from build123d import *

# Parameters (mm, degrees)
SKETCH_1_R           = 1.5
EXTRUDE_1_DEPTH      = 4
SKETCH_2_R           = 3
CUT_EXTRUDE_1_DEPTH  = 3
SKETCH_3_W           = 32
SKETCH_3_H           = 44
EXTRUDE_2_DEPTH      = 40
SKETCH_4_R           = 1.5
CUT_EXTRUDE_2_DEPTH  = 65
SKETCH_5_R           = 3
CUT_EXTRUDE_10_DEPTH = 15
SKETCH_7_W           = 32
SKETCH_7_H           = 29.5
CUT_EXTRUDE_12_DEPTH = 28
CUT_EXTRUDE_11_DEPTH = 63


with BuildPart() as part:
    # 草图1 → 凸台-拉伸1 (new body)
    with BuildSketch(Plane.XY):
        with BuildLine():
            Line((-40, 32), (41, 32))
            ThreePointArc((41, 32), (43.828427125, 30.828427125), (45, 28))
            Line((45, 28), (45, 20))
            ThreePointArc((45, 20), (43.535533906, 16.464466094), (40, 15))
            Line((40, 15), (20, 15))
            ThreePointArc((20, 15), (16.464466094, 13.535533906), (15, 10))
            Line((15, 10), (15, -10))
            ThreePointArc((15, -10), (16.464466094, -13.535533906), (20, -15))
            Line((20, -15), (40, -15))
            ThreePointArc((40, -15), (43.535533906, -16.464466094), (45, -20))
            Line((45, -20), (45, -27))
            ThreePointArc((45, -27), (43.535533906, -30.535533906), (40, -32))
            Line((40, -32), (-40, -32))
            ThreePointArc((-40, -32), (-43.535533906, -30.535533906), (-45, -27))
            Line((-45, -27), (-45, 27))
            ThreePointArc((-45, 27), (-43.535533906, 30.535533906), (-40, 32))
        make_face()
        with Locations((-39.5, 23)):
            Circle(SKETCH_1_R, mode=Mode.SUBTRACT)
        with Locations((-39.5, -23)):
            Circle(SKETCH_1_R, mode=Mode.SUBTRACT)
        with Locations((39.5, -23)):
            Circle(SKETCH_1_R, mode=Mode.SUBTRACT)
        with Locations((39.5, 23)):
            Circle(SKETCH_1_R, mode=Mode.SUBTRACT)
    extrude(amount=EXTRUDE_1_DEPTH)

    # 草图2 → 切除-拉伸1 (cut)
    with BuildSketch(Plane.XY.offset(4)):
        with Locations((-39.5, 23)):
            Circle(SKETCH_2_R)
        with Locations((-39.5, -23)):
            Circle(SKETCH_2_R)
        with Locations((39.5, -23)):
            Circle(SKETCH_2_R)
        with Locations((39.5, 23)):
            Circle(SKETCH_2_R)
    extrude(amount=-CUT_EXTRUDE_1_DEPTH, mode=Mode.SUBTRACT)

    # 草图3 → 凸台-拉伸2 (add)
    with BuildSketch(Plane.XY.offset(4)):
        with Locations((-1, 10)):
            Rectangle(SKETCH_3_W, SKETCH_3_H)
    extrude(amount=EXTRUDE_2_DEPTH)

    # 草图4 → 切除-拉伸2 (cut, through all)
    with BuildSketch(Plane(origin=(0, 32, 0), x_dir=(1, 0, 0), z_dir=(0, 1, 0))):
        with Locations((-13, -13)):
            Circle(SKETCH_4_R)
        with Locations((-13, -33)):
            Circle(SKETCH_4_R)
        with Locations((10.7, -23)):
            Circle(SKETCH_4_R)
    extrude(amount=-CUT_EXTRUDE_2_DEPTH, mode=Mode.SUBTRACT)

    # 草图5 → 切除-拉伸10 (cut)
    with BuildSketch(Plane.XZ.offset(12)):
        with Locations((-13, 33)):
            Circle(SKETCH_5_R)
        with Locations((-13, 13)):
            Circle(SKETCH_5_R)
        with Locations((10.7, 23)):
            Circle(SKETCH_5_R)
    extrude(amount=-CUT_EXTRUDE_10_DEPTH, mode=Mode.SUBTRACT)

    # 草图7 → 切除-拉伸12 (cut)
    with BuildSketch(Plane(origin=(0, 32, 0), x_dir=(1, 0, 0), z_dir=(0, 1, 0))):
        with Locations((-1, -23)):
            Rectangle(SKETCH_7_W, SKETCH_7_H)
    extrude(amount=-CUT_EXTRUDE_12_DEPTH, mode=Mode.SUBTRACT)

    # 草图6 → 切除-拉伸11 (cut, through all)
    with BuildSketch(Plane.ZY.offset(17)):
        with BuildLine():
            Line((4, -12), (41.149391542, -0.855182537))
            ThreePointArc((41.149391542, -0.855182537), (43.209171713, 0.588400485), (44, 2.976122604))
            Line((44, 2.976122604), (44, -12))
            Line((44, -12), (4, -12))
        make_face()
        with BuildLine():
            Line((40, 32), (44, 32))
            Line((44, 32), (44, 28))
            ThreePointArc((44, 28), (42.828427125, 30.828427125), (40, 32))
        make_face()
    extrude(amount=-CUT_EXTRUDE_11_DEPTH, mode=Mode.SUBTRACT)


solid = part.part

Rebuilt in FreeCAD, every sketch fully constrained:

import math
import FreeCAD as App
import Part
import Sketcher

V = App.Vector
Q = App.Units.Quantity


def add_polygon(sketch, points):
    """Adds a closed chain of lines whose ends are joined by coincident constraints."""
    first, n = sketch.GeometryCount, len(points)
    for a, b in zip(points, points[1:] + points[:1]):
        sketch.addGeometry(Part.LineSegment(App.Vector(*a, 0), App.Vector(*b, 0)), False)
    for i in range(n):
        sketch.addConstraint(Sketcher.Constraint("Coincident", first + i, 2, first + (i + 1) % n, 1))

doc = App.newDocument("Part")
body = doc.addObject("PartDesign::Body", "Body")

# Sketch on XY plane
sketch1 = body.newObject("Sketcher::SketchObject", "Sketch")
sketch1.AttachmentSupport = (doc.getObject("XY_Plane"), [""])
sketch1.MapMode = "FlatFace"
sketch1.addGeometry([
    Part.LineSegment(V(41, 32, 0), V(-40, 32, 0)),  # 0
    Part.ArcOfCircle(Part.Circle(V(-40, 27, 0), V(0, 0, 1), 5), math.radians(90), math.radians(180)),  # 1
    Part.LineSegment(V(-45, 27, 0), V(-45, -27, 0)),  # 2
    Part.ArcOfCircle(Part.Circle(V(-40, -27, 0), V(0, 0, 1), 5), math.radians(180), math.radians(270)),  # 3
    Part.LineSegment(V(-40, -32, 0), V(40, -32, 0)),  # 4
    Part.ArcOfCircle(Part.Circle(V(40, -27, 0), V(0, 0, 1), 5), math.radians(-90), math.radians(0)),  # 5
    Part.LineSegment(V(45, -27, 0), V(45, -20, 0)),  # 6
    Part.ArcOfCircle(Part.Circle(V(40, -20, 0), V(0, 0, 1), 5), math.radians(0), math.radians(90)),  # 7
    Part.LineSegment(V(40, -15, 0), V(20, -15, 0)),  # 8
    Part.ArcOfCircle(Part.Circle(V(20, -10, 0), V(0, 0, 1), 5), math.radians(180), math.radians(270)),  # 9
    Part.LineSegment(V(15, -10, 0), V(15, 10, 0)),  # 10
    Part.ArcOfCircle(Part.Circle(V(20, 10, 0), V(0, 0, 1), 5), math.radians(90), math.radians(180)),  # 11
    Part.LineSegment(V(20, 15, 0), V(40, 15, 0)),  # 12
    Part.ArcOfCircle(Part.Circle(V(40, 20, 0), V(0, 0, 1), 5), math.radians(-90), math.radians(0)),  # 13
    Part.LineSegment(V(45, 20, 0), V(45, 28, 0)),  # 14
    Part.ArcOfCircle(Part.Circle(V(41, 28, 0), V(0, 0, 1), 4), math.radians(0), math.radians(90)),  # 15
    Part.Circle(V(39.5, -23, 0), V(0, 0, 1), 1.5),  # 16
    Part.Circle(V(-39.5, -23, 0), V(0, 0, 1), 1.5),  # 17
    Part.Circle(V(39.5, 23, 0), V(0, 0, 1), 1.5),  # 18
    Part.Circle(V(-39.5, 23, 0), V(0, 0, 1), 1.5),  # 19
], False)
sketch1.addConstraint([
    Sketcher.Constraint("Tangent", 0, 2, 1, 1),
    Sketcher.Constraint("Tangent", 1, 2, 2, 1),
    Sketcher.Constraint("Tangent", 2, 2, 3, 1),
    Sketcher.Constraint("Tangent", 3, 2, 4, 1),
    Sketcher.Constraint("Tangent", 4, 2, 5, 1),
    Sketcher.Constraint("Tangent", 5, 2, 6, 1),
    Sketcher.Constraint("Tangent", 6, 2, 7, 1),
    Sketcher.Constraint("Tangent", 7, 2, 8, 1),
    Sketcher.Constraint("Tangent", 8, 2, 9, 2),
    Sketcher.Constraint("Tangent", 9, 1, 10, 1),
    Sketcher.Constraint("Tangent", 10, 2, 11, 2),
    Sketcher.Constraint("Tangent", 11, 1, 12, 1),
    Sketcher.Constraint("Tangent", 12, 2, 13, 1),
    Sketcher.Constraint("Tangent", 13, 2, 14, 1),
    Sketcher.Constraint("Tangent", 14, 2, 15, 1),
    Sketcher.Constraint("Tangent", 15, 2, 0, 1),
    Sketcher.Constraint("Horizontal", 0),
    Sketcher.Constraint("Vertical", 2),
    Sketcher.Constraint("Horizontal", 4),
    Sketcher.Constraint("Vertical", 6),
    Sketcher.Constraint("Horizontal", 8),
    Sketcher.Constraint("Vertical", 10),
    Sketcher.Constraint("Horizontal", 12),
    Sketcher.Constraint("Vertical", 14),
    Sketcher.Constraint("Equal", 1, 3),
    Sketcher.Constraint("Equal", 3, 5),
    Sketcher.Constraint("Equal", 5, 7),
    Sketcher.Constraint("Equal", 7, 9),
    Sketcher.Constraint("Equal", 9, 11),
    Sketcher.Constraint("Equal", 11, 13),
    Sketcher.Constraint("Equal", 16, 17),
    Sketcher.Constraint("Equal", 17, 18),
    Sketcher.Constraint("Equal", 18, 19),
    Sketcher.Constraint("Symmetric", 1, 3, 5, 3, -1, 1),
    Sketcher.Constraint("Symmetric", 17, 3, 18, 3, -1, 1),
    Sketcher.Constraint("Symmetric", 16, 3, 19, 3, -1, 1),
    Sketcher.Constraint("Symmetric", 16, 3, 17, 3, -2),
    Sketcher.Constraint("Symmetric", 7, 3, 13, 3, -1),
    Sketcher.Constraint("Equal", 12, 10),
    Sketcher.Constraint("Diameter", 16, Q("3 mm")),
    Sketcher.Constraint("Radius", 1, Q("5 mm")),
    Sketcher.Constraint("Radius", 15, Q("4 mm")),
    Sketcher.Constraint("DistanceX", 0, 2, 0, 1, Q("81 mm")),
    Sketcher.Constraint("DistanceX", 8, 2, 8, 1, Q("20 mm")),
    Sketcher.Constraint("DistanceY", 2, 2, 2, 1, Q("54 mm")),
    Sketcher.Constraint("DistanceY", 16, 3, -1, 1, Q("23 mm")),
    Sketcher.Constraint("DistanceX", 17, 3, 16, 3, Q("79 mm")),
])
pad1 = body.newObject("PartDesign::Pad", "Pad")
pad1.Profile = sketch1
pad1.Length = 4

# Sketch on XY plane
sketch2 = body.newObject("Sketcher::SketchObject", "Sketch001")
sketch2.AttachmentSupport = (doc.getObject("XY_Plane"), [""])
sketch2.MapMode = "FlatFace"
sketch2.AttachmentOffset = App.Placement(V(0, 0, 4), App.Rotation())
sketch2.addGeometry([
    Part.Circle(V(-39.5, 23, 0), V(0, 0, 1), 3),
    Part.Circle(V(-39.5, -23, 0), V(0, 0, 1), 3),
    Part.Circle(V(39.5, -23, 0), V(0, 0, 1), 3),
    Part.Circle(V(39.5, 23, 0), V(0, 0, 1), 3),
], False)
sketch2.addConstraint([
    Sketcher.Constraint("Equal", 0, 1),
    Sketcher.Constraint("Equal", 1, 2),
    Sketcher.Constraint("Equal", 2, 3),
    Sketcher.Constraint("Symmetric", 0, 3, 2, 3, -1, 1),
    Sketcher.Constraint("Symmetric", 1, 3, 3, 3, -1, 1),
    Sketcher.Constraint("Symmetric", 1, 3, 2, 3, -2),
    Sketcher.Constraint("Diameter", 0, Q("6 mm")),
    Sketcher.Constraint("DistanceY", -1, 1, 0, 3, Q("23 mm")),
    Sketcher.Constraint("DistanceX", 1, 3, 2, 3, Q("79 mm")),
])
pocket1 = body.newObject("PartDesign::Pocket", "Pocket")
pocket1.Profile = sketch2
pocket1.Length = 3

# Sketch on XY plane
sketch3 = body.newObject("Sketcher::SketchObject", "Sketch002")
sketch3.AttachmentSupport = (doc.getObject("XY_Plane"), [""])
sketch3.MapMode = "FlatFace"
sketch3.AttachmentOffset = App.Placement(V(0, 0, 4), App.Rotation())
add_polygon(sketch3, [(-17, 32), (-17, -12), (15, -12), (15, 32)])  # lines 0-3
sketch3.addConstraint([
    Sketcher.Constraint("Vertical", 0),
    Sketcher.Constraint("Horizontal", 1),
    Sketcher.Constraint("Vertical", 2),
    Sketcher.Constraint("Horizontal", 3),
    Sketcher.Constraint("DistanceX", 1, 1, 1, 2, Q("32 mm")),
    Sketcher.Constraint("DistanceY", 0, 2, 0, 1, Q("44 mm")),
    Sketcher.Constraint("DistanceX", 0, 2, -1, 1, Q("17 mm")),
    Sketcher.Constraint("DistanceY", 0, 2, -1, 1, Q("12 mm")),
])
pad2 = body.newObject("PartDesign::Pad", "Pad001")
pad2.Profile = sketch3
pad2.Length = 40

# Sketch on XZ plane
sketch4 = body.newObject("Sketcher::SketchObject", "Sketch003")
sketch4.AttachmentSupport = (doc.getObject("XZ_Plane"), [""])
sketch4.MapMode = "FlatFace"
sketch4.AttachmentOffset = App.Placement(V(0, 0, -32), App.Rotation())
sketch4.addGeometry([
    Part.Circle(V(-13, 13, 0), V(0, 0, 1), 1.5),
    Part.Circle(V(-13, 33, 0), V(0, 0, 1), 1.5),
    Part.Circle(V(10.7, 23, 0), V(0, 0, 1), 1.5),
], False)
sketch4.addConstraint([
    Sketcher.Constraint("Equal", 0, 1),
    Sketcher.Constraint("Equal", 1, 2),
    Sketcher.Constraint("Vertical", 0, 3, 1, 3),
    Sketcher.Constraint("Diameter", 0, Q("3 mm")),
    Sketcher.Constraint("DistanceX", 0, 3, -1, 1, Q("13 mm")),
    Sketcher.Constraint("DistanceY", -1, 1, 0, 3, Q("13 mm")),
    Sketcher.Constraint("DistanceY", -1, 1, 1, 3, Q("33 mm")),
    Sketcher.Constraint("DistanceY", -1, 1, 2, 3, Q("23 mm")),
    Sketcher.Constraint("DistanceX", -1, 1, 2, 3, Q("10.7 mm")),
])
pocket2 = body.newObject("PartDesign::Pocket", "Pocket001")
pocket2.Profile = sketch4
pocket2.Type = "ThroughAll"
pocket2.Reversed = True

# Sketch on XZ plane
sketch5 = body.newObject("Sketcher::SketchObject", "Sketch004")
sketch5.AttachmentSupport = (doc.getObject("XZ_Plane"), [""])
sketch5.MapMode = "FlatFace"
sketch5.AttachmentOffset = App.Placement(V(0, 0, 12), App.Rotation())
sketch5.addGeometry([
    Part.Circle(V(-13, 33, 0), V(0, 0, 1), 3),
    Part.Circle(V(-13, 13, 0), V(0, 0, 1), 3),
    Part.Circle(V(10.7, 23, 0), V(0, 0, 1), 3),
], False)
sketch5.addConstraint([
    Sketcher.Constraint("Equal", 0, 1),
    Sketcher.Constraint("Equal", 1, 2),
    Sketcher.Constraint("Vertical", 0, 3, 1, 3),
    Sketcher.Constraint("Diameter", 0, Q("6 mm")),
    Sketcher.Constraint("DistanceX", 0, 3, -1, 1, Q("13 mm")),
    Sketcher.Constraint("DistanceY", -1, 1, 0, 3, Q("33 mm")),
    Sketcher.Constraint("DistanceY", -1, 1, 1, 3, Q("13 mm")),
    Sketcher.Constraint("DistanceY", -1, 1, 2, 3, Q("23 mm")),
    Sketcher.Constraint("DistanceX", -1, 1, 2, 3, Q("10.7 mm")),
])
pocket3 = body.newObject("PartDesign::Pocket", "Pocket002")
pocket3.Profile = sketch5
pocket3.Length = 15

# Sketch on XZ plane
sketch6 = body.newObject("Sketcher::SketchObject", "Sketch005")
sketch6.AttachmentSupport = (doc.getObject("XZ_Plane"), [""])
sketch6.MapMode = "FlatFace"
sketch6.AttachmentOffset = App.Placement(V(0, 0, -32), App.Rotation())
add_polygon(sketch6, [(-17, 8), (-17, 38), (15, 38), (15, 8)])  # lines 0-3
sketch6.addConstraint([
    Sketcher.Constraint("Vertical", 0),
    Sketcher.Constraint("Horizontal", 1),
    Sketcher.Constraint("Vertical", 2),
    Sketcher.Constraint("Horizontal", 3),
    Sketcher.Constraint("DistanceX", 1, 1, 1, 2, Q("32 mm")),
    Sketcher.Constraint("DistanceY", 0, 1, 0, 2, Q("29.5 mm")),
    Sketcher.Constraint("DistanceX", 0, 2, -1, 1, Q("17 mm")),
    Sketcher.Constraint("DistanceY", -1, 1, 0, 2, Q("37.75 mm")),
])
pocket4 = body.newObject("PartDesign::Pocket", "Pocket003")
pocket4.Profile = sketch6
pocket4.Length = 28
pocket4.Reversed = True

# Sketch on YZ plane
sketch7 = body.newObject("Sketcher::SketchObject", "Sketch006")
sketch7.AttachmentSupport = (doc.getObject("YZ_Plane"), [""])
sketch7.MapMode = "FlatFace"
sketch7.AttachmentOffset = App.Placement(V(0, 0, -17), App.Rotation())
sketch7.addGeometry([
    Part.LineSegment(V(-0.9, 41.1, 0), V(-12, 4, 0)),  # 0
    Part.LineSegment(V(-12, 4, 0), V(-12, 44, 0)),  # 1
    Part.LineSegment(V(-12, 44, 0), V(3, 44, 0)),  # 2
    Part.ArcOfCircle(Part.Circle(V(3, 40, 0), V(0, 0, 1), 4), math.radians(90), math.radians(163)),  # 3
    Part.LineSegment(V(32, 44, 0), V(32, 40, 0)),  # 4
    Part.ArcOfCircle(Part.Circle(V(28, 40, 0), V(0, 0, 1), 4), math.radians(0), math.radians(90)),  # 5
    Part.LineSegment(V(28, 44, 0), V(32, 44, 0)),  # 6
], False)
sketch7.addConstraint([
    Sketcher.Constraint("Coincident", 0, 2, 1, 1),
    Sketcher.Constraint("Coincident", 1, 2, 2, 1),
    Sketcher.Constraint("Tangent", 2, 2, 3, 1),
    Sketcher.Constraint("Tangent", 3, 2, 0, 1),
    Sketcher.Constraint("Tangent", 4, 2, 5, 1),
    Sketcher.Constraint("Tangent", 5, 2, 6, 1),
    Sketcher.Constraint("Coincident", 6, 2, 4, 1),
    Sketcher.Constraint("Vertical", 1),
    Sketcher.Constraint("Horizontal", 2),
    Sketcher.Constraint("Vertical", 4),
    Sketcher.Constraint("Horizontal", 6),
    Sketcher.Constraint("Equal", 3, 5),
    Sketcher.Constraint("Horizontal", 3, 3, 5, 3),
    Sketcher.Constraint("Radius", 3, Q("4 mm")),
    Sketcher.Constraint("DistanceY", 1, 1, 1, 2, Q("40 mm")),
    Sketcher.Constraint("DistanceY", -1, 1, 3, 3, Q("40 mm")),
    Sketcher.Constraint("DistanceX", -1, 1, 5, 3, Q("28 mm")),
    Sketcher.Constraint("DistanceX", 0, 2, -1, 1, Q("12 mm")),
    Sketcher.Constraint("DistanceX", 2, 1, 2, 2, Q("14.976123 mm")),
])
pocket5 = body.newObject("PartDesign::Pocket", "Pocket004")
pocket5.Profile = sketch7
pocket5.Type = "ThroughAll"
pocket5.Reversed = True

doc.recompute()
